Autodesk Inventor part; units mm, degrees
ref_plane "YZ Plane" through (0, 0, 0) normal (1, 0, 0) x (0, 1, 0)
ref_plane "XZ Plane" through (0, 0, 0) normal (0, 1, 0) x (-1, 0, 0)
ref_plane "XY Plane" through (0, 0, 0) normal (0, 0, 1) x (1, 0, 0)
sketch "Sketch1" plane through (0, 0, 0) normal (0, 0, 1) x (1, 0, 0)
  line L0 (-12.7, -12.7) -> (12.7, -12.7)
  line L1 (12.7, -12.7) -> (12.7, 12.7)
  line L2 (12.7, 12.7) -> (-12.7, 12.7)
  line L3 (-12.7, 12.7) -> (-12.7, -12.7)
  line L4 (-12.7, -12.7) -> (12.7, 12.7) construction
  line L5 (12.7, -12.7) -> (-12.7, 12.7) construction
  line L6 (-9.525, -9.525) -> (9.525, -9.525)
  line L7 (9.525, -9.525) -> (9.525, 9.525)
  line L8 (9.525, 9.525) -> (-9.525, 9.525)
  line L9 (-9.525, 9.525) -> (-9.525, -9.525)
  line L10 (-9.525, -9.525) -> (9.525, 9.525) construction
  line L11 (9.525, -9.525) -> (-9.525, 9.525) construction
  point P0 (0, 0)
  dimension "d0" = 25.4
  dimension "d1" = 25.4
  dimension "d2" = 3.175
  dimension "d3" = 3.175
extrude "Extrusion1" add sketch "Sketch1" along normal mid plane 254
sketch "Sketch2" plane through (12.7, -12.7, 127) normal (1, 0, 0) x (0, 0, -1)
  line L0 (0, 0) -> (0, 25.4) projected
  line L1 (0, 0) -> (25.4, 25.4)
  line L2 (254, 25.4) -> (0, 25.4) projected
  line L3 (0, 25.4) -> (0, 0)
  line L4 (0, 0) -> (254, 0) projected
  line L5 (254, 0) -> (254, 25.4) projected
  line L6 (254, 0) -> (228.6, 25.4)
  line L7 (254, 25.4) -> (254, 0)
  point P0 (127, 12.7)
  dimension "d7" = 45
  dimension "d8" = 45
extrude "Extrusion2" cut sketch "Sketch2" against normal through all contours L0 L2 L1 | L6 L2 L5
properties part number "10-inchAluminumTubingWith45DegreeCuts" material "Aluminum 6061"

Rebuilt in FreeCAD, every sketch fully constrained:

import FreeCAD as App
import Part
import Sketcher

V = App.Vector
Q = App.Units.Quantity

doc = App.newDocument("Part")
body = doc.addObject("PartDesign::Body", "Body")

# Sketch on XY plane
sketch1 = body.newObject("Sketcher::SketchObject", "Sketch")
sketch1.AttachmentSupport = (doc.getObject("XY_Plane"), [""])
sketch1.MapMode = "FlatFace"
sketch1.addGeometry([
    Part.LineSegment(V(-13, 13, 0), V(-13, -13, 0)),  # 0
    Part.LineSegment(V(-13, -13, 0), V(13, -13, 0)),  # 1
    Part.LineSegment(V(13, -13, 0), V(13, 13, 0)),  # 2
    Part.LineSegment(V(13, 13, 0), V(-13, 13, 0)),  # 3
    Part.LineSegment(V(10, -10, 0), V(-10, -10, 0)),  # 4
    Part.LineSegment(V(-10, -10, 0), V(-10, 10, 0)),  # 5
    Part.LineSegment(V(-10, 10, 0), V(10, 10, 0)),  # 6
    Part.LineSegment(V(10, 10, 0), V(10, -10, 0)),  # 7
], False)
sketch1.addConstraint([
    Sketcher.Constraint("Coincident", 0, 2, 1, 1),
    Sketcher.Constraint("Coincident", 1, 2, 2, 1),
    Sketcher.Constraint("Coincident", 2, 2, 3, 1),
    Sketcher.Constraint("Coincident", 3, 2, 0, 1),
    Sketcher.Constraint("Coincident", 4, 2, 5, 1),
    Sketcher.Constraint("Coincident", 5, 2, 6, 1),
    Sketcher.Constraint("Coincident", 6, 2, 7, 1),
    Sketcher.Constraint("Coincident", 7, 2, 4, 1),
    Sketcher.Constraint("Vertical", 0),
    Sketcher.Constraint("Horizontal", 1),
    Sketcher.Constraint("Vertical", 2),
    Sketcher.Constraint("Horizontal", 3),
    Sketcher.Constraint("Horizontal", 4),
    Sketcher.Constraint("Vertical", 5),
    Sketcher.Constraint("Horizontal", 6),
    Sketcher.Constraint("Vertical", 7),
    Sketcher.Constraint("Symmetric", 0, 2, 2, 2, -1, 1),
    Sketcher.Constraint("Symmetric", 4, 2, 6, 2, -1, 1),
    Sketcher.Constraint("Equal", 3, 0),
    Sketcher.Constraint("Equal", 6, 5),
    Sketcher.Constraint("DistanceX", 1, 1, 1, 2, Q("1 in")),
    Sketcher.Constraint("DistanceX", 0, 2, 4, 2, Q("0.125 in")),
])
pad1 = body.newObject("PartDesign::Pad", "Pad")
pad1.Profile = sketch1
pad1.Length = Q("10 in")
pad1.Midplane = True

# Sketch on YZ plane
sketch2 = body.newObject("Sketcher::SketchObject", "Sketch001")
sketch2.AttachmentSupport = (doc.getObject("YZ_Plane"), [""])
sketch2.MapMode = "FlatFace"
sketch2.AttachmentOffset = App.Placement(V(0, 0, 0.5 * 25.4), App.Rotation())
sketch2.addGeometry([
    Part.LineSegment(V(13, 127, 0), V(-13, 127, 0)),  # 0
    Part.LineSegment(V(-13, 127, 0), V(13, 102, 0)),  # 1
    Part.LineSegment(V(13, 102, 0), V(13, 127, 0)),  # 2
    Part.LineSegment(V(13, -102, 0), V(-13, -127, 0)),  # 3
    Part.LineSegment(V(-13, -127, 0), V(13, -127, 0)),  # 4
    Part.LineSegment(V(13, -127, 0), V(13, -102, 0)),  # 5
], False)
sketch2.addConstraint([
    Sketcher.Constraint("Coincident", 0, 2, 1, 1),
    Sketcher.Constraint("Coincident", 1, 2, 2, 1),
    Sketcher.Constraint("Coincident", 2, 2, 0, 1),
    Sketcher.Constraint("Coincident", 3, 2, 4, 1),
    Sketcher.Constraint("Coincident", 4, 2, 5, 1),
    Sketcher.Constraint("Coincident", 5, 2, 3, 1),
    Sketcher.Constraint("Horizontal", 0),
    Sketcher.Constraint("Vertical", 2),
    Sketcher.Constraint("Horizontal", 4),
    Sketcher.Constraint("Vertical", 5),
    Sketcher.Constraint("Symmetric", 2, 2, 3, 2, -1, 1),
    Sketcher.Constraint("Symmetric", 1, 2, 5, 2, -1),
    Sketcher.Constraint("Perpendicular", 1, 3),
    Sketcher.Constraint("Vertical", 0, 2, 3, 2),
    Sketcher.Constraint("DistanceX", 0, 2, 0, 1, Q("1 in")),
    Sketcher.Constraint("DistanceY", -1, 1, 0, 2, Q("5 in")),
])
pocket1 = body.newObject("PartDesign::Pocket", "Pocket")
pocket1.Profile = sketch2
pocket1.Type = "ThroughAll"

doc.recompute()
